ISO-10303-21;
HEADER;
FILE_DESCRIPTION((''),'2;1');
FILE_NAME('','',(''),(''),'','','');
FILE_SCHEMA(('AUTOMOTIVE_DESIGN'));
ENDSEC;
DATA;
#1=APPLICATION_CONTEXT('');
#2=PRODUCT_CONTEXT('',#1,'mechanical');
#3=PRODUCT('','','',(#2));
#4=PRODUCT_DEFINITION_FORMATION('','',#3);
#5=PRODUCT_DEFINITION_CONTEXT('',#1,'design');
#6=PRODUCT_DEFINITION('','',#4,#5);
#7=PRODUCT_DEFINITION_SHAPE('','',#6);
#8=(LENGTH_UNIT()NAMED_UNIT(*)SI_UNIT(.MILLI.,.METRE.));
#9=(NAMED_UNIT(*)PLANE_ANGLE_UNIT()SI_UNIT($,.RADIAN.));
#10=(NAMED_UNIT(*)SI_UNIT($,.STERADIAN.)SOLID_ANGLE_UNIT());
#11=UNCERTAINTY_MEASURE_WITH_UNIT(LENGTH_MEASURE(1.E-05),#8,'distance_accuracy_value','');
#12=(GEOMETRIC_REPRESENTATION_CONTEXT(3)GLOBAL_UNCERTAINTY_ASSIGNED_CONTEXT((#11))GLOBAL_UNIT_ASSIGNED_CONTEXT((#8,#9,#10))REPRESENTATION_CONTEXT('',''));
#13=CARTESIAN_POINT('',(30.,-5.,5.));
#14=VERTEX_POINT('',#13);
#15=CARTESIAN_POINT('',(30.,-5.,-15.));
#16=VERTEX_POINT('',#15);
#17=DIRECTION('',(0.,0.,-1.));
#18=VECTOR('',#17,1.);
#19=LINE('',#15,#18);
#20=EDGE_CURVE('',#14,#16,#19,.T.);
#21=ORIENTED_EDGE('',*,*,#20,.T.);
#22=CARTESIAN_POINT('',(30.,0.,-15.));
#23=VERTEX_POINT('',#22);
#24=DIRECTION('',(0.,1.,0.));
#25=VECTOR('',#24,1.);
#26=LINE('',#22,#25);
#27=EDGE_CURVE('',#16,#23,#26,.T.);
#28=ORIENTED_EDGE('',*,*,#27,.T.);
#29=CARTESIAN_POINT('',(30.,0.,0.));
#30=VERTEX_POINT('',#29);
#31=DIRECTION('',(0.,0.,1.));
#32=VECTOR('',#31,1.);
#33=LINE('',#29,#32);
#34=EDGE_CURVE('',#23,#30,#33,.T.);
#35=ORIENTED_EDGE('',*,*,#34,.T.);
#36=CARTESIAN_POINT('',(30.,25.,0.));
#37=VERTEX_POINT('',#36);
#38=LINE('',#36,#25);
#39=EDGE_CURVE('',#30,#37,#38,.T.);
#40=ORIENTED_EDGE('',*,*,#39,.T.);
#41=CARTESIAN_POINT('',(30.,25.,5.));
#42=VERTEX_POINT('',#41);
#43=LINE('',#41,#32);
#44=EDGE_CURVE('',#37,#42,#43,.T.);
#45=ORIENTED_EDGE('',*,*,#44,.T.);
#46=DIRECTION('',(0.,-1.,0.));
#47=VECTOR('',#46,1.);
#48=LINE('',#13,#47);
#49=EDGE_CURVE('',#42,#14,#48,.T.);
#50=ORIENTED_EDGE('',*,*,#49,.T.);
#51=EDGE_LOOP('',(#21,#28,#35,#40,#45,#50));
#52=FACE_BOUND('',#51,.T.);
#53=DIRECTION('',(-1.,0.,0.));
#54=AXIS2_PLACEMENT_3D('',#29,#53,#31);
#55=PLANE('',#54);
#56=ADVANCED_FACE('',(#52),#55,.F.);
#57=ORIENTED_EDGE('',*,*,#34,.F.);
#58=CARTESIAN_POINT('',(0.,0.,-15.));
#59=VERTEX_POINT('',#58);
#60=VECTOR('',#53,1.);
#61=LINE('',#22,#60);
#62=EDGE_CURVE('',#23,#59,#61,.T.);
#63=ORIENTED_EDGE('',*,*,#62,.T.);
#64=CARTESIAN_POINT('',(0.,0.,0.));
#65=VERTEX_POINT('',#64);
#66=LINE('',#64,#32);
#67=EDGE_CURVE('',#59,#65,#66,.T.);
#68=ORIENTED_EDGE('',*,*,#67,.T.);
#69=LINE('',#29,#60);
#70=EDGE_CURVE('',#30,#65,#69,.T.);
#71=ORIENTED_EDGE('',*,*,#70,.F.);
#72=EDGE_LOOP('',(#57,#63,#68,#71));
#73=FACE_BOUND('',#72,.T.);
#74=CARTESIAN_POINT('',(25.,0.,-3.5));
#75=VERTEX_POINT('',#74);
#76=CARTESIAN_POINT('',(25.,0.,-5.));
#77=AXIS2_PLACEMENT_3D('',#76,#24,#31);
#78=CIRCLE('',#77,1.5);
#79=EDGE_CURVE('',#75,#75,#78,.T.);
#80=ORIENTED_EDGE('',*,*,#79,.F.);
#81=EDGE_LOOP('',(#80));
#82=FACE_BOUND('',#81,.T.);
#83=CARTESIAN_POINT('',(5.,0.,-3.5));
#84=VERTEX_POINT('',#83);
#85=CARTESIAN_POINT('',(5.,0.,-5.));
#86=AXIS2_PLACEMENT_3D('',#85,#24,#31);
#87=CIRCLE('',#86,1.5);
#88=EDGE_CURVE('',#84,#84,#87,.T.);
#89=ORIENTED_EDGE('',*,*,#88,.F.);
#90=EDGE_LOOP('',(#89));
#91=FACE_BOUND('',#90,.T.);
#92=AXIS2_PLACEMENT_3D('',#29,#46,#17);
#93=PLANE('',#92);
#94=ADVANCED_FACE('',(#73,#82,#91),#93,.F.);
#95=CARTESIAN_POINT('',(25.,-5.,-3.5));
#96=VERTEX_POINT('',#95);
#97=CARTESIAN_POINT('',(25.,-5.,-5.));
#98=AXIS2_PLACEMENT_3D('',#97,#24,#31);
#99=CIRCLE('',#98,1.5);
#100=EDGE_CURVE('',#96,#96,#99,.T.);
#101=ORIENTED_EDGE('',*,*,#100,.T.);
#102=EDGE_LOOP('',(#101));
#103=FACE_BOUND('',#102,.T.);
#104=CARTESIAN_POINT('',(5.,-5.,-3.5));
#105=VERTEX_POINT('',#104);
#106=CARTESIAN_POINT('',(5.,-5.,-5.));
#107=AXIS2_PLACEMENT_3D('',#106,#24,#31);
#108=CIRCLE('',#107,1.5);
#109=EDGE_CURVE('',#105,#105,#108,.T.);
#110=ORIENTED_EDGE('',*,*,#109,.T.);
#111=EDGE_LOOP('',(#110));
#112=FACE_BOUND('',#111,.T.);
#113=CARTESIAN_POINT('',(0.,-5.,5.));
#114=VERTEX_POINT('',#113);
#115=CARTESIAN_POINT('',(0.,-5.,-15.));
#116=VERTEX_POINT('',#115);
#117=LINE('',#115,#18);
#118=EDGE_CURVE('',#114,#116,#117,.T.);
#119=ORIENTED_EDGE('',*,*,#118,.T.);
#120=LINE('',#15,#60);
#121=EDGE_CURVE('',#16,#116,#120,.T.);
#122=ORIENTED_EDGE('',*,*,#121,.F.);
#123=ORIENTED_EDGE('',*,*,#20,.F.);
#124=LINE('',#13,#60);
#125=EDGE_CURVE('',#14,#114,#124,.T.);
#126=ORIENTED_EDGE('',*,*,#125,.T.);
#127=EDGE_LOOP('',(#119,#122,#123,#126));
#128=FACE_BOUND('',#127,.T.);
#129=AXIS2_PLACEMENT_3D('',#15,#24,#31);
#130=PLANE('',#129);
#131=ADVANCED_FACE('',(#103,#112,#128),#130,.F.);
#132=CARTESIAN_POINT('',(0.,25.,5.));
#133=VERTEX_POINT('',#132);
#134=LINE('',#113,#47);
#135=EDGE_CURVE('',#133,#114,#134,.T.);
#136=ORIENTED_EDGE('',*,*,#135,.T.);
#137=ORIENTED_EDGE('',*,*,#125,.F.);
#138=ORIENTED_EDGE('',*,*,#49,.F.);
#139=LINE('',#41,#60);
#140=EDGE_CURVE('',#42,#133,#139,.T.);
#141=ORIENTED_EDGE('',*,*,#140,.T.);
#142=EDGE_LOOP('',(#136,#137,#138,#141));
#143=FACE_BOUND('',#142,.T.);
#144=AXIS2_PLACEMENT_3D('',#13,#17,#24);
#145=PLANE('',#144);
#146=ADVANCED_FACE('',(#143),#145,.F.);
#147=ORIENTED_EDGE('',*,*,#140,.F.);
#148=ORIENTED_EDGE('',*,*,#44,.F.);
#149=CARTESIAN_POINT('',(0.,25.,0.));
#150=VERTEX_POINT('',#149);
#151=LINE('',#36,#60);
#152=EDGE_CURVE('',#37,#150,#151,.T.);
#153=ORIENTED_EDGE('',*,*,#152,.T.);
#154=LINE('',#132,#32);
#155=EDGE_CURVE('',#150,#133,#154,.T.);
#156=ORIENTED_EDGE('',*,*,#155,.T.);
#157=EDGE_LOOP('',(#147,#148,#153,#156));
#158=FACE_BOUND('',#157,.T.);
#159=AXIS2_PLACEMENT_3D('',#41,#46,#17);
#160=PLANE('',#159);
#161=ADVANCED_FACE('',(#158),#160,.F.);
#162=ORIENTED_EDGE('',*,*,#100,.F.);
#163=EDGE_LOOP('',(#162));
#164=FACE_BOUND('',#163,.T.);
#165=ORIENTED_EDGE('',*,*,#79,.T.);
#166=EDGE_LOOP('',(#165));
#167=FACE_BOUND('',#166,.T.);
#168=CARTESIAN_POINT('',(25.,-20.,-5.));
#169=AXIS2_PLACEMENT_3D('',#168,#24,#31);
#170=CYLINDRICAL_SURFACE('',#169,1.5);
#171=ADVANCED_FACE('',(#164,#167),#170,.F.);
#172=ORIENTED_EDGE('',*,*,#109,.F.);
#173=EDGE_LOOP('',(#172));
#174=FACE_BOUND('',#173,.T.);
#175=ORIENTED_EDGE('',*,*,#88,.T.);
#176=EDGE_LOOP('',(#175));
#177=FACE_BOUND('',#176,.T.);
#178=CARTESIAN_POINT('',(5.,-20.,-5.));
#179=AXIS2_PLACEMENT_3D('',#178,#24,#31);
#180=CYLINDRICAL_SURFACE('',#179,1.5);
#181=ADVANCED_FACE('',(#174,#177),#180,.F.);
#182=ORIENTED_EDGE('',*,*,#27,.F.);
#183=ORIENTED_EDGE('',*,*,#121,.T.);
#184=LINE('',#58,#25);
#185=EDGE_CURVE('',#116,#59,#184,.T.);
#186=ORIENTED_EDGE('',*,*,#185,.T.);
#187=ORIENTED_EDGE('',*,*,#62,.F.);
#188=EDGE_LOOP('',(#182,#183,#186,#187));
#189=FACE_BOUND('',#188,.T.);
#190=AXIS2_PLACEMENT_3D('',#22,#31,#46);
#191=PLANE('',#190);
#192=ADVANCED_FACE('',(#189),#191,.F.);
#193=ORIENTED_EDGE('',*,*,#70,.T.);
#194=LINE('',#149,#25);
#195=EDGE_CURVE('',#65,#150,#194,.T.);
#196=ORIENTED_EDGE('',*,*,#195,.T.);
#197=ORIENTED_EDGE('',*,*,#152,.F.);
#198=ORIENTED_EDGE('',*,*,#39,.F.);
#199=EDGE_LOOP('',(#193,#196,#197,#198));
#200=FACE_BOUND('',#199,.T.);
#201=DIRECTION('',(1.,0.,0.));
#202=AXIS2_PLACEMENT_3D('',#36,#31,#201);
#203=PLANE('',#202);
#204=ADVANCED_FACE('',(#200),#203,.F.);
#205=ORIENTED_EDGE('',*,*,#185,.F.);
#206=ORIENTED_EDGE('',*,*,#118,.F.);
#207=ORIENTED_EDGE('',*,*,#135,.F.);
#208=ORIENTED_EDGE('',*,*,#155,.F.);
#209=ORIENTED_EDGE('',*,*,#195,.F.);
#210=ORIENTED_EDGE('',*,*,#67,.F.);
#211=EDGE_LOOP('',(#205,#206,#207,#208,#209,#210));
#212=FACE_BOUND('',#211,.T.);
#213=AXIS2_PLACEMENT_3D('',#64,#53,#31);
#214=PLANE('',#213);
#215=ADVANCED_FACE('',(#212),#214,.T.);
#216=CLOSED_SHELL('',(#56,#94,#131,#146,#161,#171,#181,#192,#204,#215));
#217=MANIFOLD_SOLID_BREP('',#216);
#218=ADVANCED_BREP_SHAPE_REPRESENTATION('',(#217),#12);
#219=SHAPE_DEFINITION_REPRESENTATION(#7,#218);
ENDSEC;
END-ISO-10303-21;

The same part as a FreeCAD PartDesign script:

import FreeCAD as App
import Part
import Sketcher


def add_polygon(sketch, points):
    """Adds a closed chain of lines whose ends are joined by coincident constraints."""
    first, n = sketch.GeometryCount, len(points)
    for a, b in zip(points, points[1:] + points[:1]):
        sketch.addGeometry(Part.LineSegment(App.Vector(*a, 0), App.Vector(*b, 0)), False)
    for i in range(n):
        sketch.addConstraint(Sketcher.Constraint("Coincident", first + i, 2, first + (i + 1) % n, 1))

doc = App.newDocument("Part")
body = doc.addObject("PartDesign::Body", "Body")

# Sketch on YZ plane
sketch1 = body.newObject("Sketcher::SketchObject", "Sketch")
sketch1.AttachmentSupport = (doc.getObject("YZ_Plane"), [""])
sketch1.MapMode = "FlatFace"
add_polygon(sketch1, [(0, 0), (25, 0), (25, 5), (-5, 5), (-5, -15), (0, -15)])  # lines 0-5
sketch1.addConstraint(Sketcher.Constraint("Horizontal", 0))
sketch1.addConstraint(Sketcher.Constraint("Vertical", 1))
sketch1.addConstraint(Sketcher.Constraint("Horizontal", 2))
sketch1.addConstraint(Sketcher.Constraint("Vertical", 3))
sketch1.addConstraint(Sketcher.Constraint("Horizontal", 4))
sketch1.addConstraint(Sketcher.Constraint("Vertical", 5))
sketch1.addConstraint(Sketcher.Constraint("Coincident", 5, 2, -1, 1))
sketch1.addConstraint(Sketcher.Constraint("Equal", 4, 1))
sketch1.addConstraint(Sketcher.Constraint("DistanceX", 0, 1, 0, 2, 25.0))
sketch1.addConstraint(Sketcher.Constraint("DistanceX", 2, 2, 2, 1, 30.0))
sketch1.addConstraint(Sketcher.Constraint("DistanceY", 3, 2, 3, 1, 20.0))
pad1 = body.newObject("PartDesign::Pad", "Pad")
pad1.Profile = sketch1
pad1.Length = 30

# Sketch on XZ plane
sketch2 = body.newObject("Sketcher::SketchObject", "Sketch001")
sketch2.AttachmentSupport = (doc.getObject("XZ_Plane"), [""])
sketch2.MapMode = "FlatFace"
sketch2.addGeometry(Part.Circle(App.Vector(5, -5, 0), App.Vector(0, 0, 1), 1.5), False)
sketch2.addGeometry(Part.Circle(App.Vector(25, -5, 0), App.Vector(0, 0, 1), 1.5), False)
sketch2.addConstraint(Sketcher.Constraint("Equal", 0, 1))
sketch2.addConstraint(Sketcher.Constraint("Horizontal", 0, 3, 1, 3))
sketch2.addConstraint(Sketcher.Constraint("Diameter", 0, 3.0))
sketch2.addConstraint(Sketcher.Constraint("DistanceX", -1, 1, 0, 3, 5.0))
sketch2.addConstraint(Sketcher.Constraint("DistanceY", 0, 3, -1, 1, 5.0))
sketch2.addConstraint(Sketcher.Constraint("DistanceX", -1, 1, 1, 3, 25.0))
pocket1 = body.newObject("PartDesign::Pocket", "Pocket")
pocket1.Profile = sketch2
pocket1.Length = 20
pocket1.Reversed = True

doc.recompute()
